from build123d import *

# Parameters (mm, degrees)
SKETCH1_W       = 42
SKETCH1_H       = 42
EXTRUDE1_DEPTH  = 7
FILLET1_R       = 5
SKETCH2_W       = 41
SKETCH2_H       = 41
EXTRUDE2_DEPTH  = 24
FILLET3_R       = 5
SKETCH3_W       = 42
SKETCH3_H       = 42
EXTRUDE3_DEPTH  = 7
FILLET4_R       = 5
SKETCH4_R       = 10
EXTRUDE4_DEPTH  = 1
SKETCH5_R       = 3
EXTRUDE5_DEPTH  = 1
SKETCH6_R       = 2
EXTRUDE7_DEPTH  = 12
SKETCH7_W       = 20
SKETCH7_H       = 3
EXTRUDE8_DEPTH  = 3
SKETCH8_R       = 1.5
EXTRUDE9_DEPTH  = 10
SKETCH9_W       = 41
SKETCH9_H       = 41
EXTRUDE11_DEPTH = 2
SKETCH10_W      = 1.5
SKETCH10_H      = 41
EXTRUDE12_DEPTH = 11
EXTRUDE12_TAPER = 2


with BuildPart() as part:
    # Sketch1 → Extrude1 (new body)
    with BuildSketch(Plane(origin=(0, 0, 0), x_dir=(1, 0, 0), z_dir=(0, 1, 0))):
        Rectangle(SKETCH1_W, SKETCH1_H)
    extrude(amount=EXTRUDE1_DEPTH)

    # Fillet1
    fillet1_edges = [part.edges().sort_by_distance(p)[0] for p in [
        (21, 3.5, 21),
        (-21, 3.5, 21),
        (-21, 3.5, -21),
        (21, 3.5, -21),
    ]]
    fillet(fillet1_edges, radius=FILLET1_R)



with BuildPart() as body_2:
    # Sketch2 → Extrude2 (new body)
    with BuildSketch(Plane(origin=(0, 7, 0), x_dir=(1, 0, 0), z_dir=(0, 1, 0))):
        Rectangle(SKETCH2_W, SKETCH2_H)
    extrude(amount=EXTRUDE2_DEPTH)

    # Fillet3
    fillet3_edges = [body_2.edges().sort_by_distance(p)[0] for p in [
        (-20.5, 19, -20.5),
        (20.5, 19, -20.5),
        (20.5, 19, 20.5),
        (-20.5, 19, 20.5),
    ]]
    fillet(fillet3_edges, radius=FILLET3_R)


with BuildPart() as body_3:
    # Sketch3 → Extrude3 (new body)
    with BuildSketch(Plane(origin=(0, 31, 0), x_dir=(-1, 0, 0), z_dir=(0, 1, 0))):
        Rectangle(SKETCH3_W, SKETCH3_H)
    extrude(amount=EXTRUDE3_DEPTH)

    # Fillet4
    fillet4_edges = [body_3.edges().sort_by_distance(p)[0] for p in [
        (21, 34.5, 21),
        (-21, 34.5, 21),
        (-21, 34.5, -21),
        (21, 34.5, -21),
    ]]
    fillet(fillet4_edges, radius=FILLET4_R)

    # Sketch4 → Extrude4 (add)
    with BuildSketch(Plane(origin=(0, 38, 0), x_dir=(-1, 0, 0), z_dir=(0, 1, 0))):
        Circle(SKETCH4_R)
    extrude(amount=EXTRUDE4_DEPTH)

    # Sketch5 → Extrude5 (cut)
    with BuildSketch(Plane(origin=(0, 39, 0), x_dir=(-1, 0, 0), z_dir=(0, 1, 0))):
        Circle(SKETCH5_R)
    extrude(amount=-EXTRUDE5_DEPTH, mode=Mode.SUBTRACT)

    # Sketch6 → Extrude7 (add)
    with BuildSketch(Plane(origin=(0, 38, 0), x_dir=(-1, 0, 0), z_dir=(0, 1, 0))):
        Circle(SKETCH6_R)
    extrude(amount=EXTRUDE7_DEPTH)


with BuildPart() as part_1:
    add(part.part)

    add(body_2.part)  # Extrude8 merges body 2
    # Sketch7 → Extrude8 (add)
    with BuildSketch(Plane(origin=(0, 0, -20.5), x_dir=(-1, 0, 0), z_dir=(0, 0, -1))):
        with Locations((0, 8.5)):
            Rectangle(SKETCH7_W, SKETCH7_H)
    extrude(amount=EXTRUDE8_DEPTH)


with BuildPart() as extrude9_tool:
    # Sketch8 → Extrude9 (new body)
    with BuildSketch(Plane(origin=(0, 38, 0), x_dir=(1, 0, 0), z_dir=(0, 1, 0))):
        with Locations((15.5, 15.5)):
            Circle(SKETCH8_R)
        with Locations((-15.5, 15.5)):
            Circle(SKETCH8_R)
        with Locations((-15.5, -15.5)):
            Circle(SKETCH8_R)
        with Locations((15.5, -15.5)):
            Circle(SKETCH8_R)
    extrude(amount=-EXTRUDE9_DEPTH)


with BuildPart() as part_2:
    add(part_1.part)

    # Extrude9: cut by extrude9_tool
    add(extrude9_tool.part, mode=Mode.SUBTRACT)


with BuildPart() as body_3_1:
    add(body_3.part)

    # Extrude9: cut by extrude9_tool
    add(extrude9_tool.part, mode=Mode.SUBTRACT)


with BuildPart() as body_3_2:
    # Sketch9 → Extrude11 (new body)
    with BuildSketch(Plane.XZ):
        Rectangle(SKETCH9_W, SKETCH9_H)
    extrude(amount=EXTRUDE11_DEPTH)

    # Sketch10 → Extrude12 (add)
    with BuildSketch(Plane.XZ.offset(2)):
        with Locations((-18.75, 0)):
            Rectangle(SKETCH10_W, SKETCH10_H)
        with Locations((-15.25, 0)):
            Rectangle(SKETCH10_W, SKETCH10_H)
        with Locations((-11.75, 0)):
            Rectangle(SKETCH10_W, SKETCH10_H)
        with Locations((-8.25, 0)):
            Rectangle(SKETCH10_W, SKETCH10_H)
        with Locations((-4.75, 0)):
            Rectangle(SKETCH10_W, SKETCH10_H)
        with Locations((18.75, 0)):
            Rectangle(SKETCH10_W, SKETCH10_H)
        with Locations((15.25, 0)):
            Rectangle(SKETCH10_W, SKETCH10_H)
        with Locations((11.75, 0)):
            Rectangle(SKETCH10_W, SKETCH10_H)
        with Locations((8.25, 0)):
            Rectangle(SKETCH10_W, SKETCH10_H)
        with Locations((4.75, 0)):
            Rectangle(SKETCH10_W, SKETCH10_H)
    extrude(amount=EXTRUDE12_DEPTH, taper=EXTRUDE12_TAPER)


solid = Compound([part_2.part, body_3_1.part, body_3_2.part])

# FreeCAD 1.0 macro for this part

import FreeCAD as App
import Part
import Sketcher
from FreeCAD import Vector
Q = App.Units.Quantity


def edges_at(feature, points):
    """Names of the edges that pass closest to the given points."""
    edges = feature.Shape.Edges
    near = lambda p: min(range(len(edges)), key=lambda i: edges[i].distToShape(Part.Vertex(*p))[0])
    return sorted({f"Edge{near(p) + 1}" for p in points})

doc = App.newDocument("Part")
body = doc.addObject("PartDesign::Body", "Body")

# Sketch on XZ plane
sketch1 = body.newObject("Sketcher::SketchObject", "Sketch")
sketch1.AttachmentSupport = (doc.getObject("XZ_Plane"), [""])
sketch1.MapMode = "FlatFace"
sketch1.addGeometry([
    Part.LineSegment(Vector(-21, -21, 0), Vector(-21, 21, 0)),
    Part.LineSegment(Vector(-21, 21, 0), Vector(21, 21, 0)),
    Part.LineSegment(Vector(21, 21, 0), Vector(21, -21, 0)),
    Part.LineSegment(Vector(21, -21, 0), Vector(-21, -21, 0)),
], False)
sketch1.addConstraint([
    Sketcher.Constraint("Coincident", 0, 2, 1, 1),
    Sketcher.Constraint("Coincident", 1, 2, 2, 1),
    Sketcher.Constraint("Coincident", 2, 2, 3, 1),
    Sketcher.Constraint("Coincident", 3, 2, 0, 1),
    Sketcher.Constraint("Vertical", 0),
    Sketcher.Constraint("Horizontal", 1),
    Sketcher.Constraint("Vertical", 2),
    Sketcher.Constraint("Horizontal", 3),
    Sketcher.Constraint("Symmetric", 0, 2, 2, 2, -1, 1),
    Sketcher.Constraint("Equal", 3, 0),
    Sketcher.Constraint("DistanceX", 1, 1, 1, 2, Q("42 mm")),
])
pad1 = body.newObject("PartDesign::Pad", "Pad")
pad1.Profile = sketch1
pad1.Length = 7
pad1.Reversed = True
doc.recompute()

fillet = body.newObject("PartDesign::Fillet", "Fillet")
fillet.Base = (pad1, edges_at(pad1, [
    (21, 3.5, 21),
    (-21, 3.5, 21),
    (-21, 3.5, -21),
    (21, 3.5, -21),
]))
fillet.Radius = 5
body2 = doc.addObject("PartDesign::Body", "Body001")

# Sketch on XZ plane
sketch2 = body2.newObject("Sketcher::SketchObject", "Sketch001")
sketch2.AttachmentSupport = (doc.getObject("XZ_Plane001"), [""])
sketch2.MapMode = "FlatFace"
sketch2.AttachmentOffset = App.Placement(Vector(0, 0, -7), App.Rotation())
sketch2.addGeometry([
    Part.LineSegment(Vector(-20, -20, 0), Vector(-20, 20, 0)),
    Part.LineSegment(Vector(-20, 20, 0), Vector(20, 20, 0)),
    Part.LineSegment(Vector(20, 20, 0), Vector(20, -20, 0)),
    Part.LineSegment(Vector(20, -20, 0), Vector(-20, -20, 0)),
], False)
sketch2.addConstraint([
    Sketcher.Constraint("Coincident", 0, 2, 1, 1),
    Sketcher.Constraint("Coincident", 1, 2, 2, 1),
    Sketcher.Constraint("Coincident", 2, 2, 3, 1),
    Sketcher.Constraint("Coincident", 3, 2, 0, 1),
    Sketcher.Constraint("Vertical", 0),
    Sketcher.Constraint("Horizontal", 1),
    Sketcher.Constraint("Vertical", 2),
    Sketcher.Constraint("Horizontal", 3),
    Sketcher.Constraint("Symmetric", 0, 2, 2, 2, -1, 1),
    Sketcher.Constraint("Equal", 3, 0),
    Sketcher.Constraint("DistanceX", 1, 1, 1, 2, Q("41 mm")),
])
pad2 = body2.newObject("PartDesign::Pad", "Pad001")
pad2.Profile = sketch2
pad2.Length = 24
pad2.Reversed = True
doc.recompute()

fillet2 = body2.newObject("PartDesign::Fillet", "Fillet001")
fillet2.Base = (pad2, edges_at(pad2, [
    (-20.5, 19, -20.5),
    (20.5, 19, -20.5),
    (20.5, 19, 20.5),
    (-20.5, 19, 20.5),
]))
fillet2.Radius = 5
body3 = doc.addObject("PartDesign::Body", "Body002")

# Sketch on XZ plane
sketch3 = body3.newObject("Sketcher::SketchObject", "Sketch002")
sketch3.AttachmentSupport = (doc.getObject("XZ_Plane002"), [""])
sketch3.MapMode = "FlatFace"
sketch3.AttachmentOffset = App.Placement(Vector(0, 0, -31), App.Rotation())
sketch3.addGeometry([
    Part.LineSegment(Vector(21, 21, 0), Vector(21, -21, 0)),
    Part.LineSegment(Vector(21, -21, 0), Vector(-21, -21, 0)),
    Part.LineSegment(Vector(-21, -21, 0), Vector(-21, 21, 0)),
    Part.LineSegment(Vector(-21, 21, 0), Vector(21, 21, 0)),
], False)
sketch3.addConstraint([
    Sketcher.Constraint("Coincident", 0, 2, 1, 1),
    Sketcher.Constraint("Coincident", 1, 2, 2, 1),
    Sketcher.Constraint("Coincident", 2, 2, 3, 1),
    Sketcher.Constraint("Coincident", 3, 2, 0, 1),
    Sketcher.Constraint("Vertical", 0),
    Sketcher.Constraint("Horizontal", 1),
    Sketcher.Constraint("Vertical", 2),
    Sketcher.Constraint("Horizontal", 3),
    Sketcher.Constraint("Symmetric", 0, 2, 2, 2, -1, 1),
    Sketcher.Constraint("Equal", 3, 0),
    Sketcher.Constraint("DistanceX", 1, 2, 1, 1, Q("42 mm")),
])
pad3 = body3.newObject("PartDesign::Pad", "Pad002")
pad3.Profile = sketch3
pad3.Length = 7
pad3.Reversed = True
doc.recompute()

fillet3 = body3.newObject("PartDesign::Fillet", "Fillet002")
fillet3.Base = (pad3, edges_at(pad3, [
    (21, 34.5, 21),
    (-21, 34.5, 21),
    (-21, 34.5, -21),
    (21, 34.5, -21),
]))
fillet3.Radius = 5

# Sketch on XZ plane
sketch4 = body3.newObject("Sketcher::SketchObject", "Sketch003")
sketch4.AttachmentSupport = (doc.getObject("XZ_Plane002"), [""])
sketch4.MapMode = "FlatFace"
sketch4.AttachmentOffset = App.Placement(Vector(0, 0, -38), App.Rotation())
sketch4.addGeometry(Part.Circle(Vector(0, 0, 0), Vector(0, 0, 1), 10), False)
sketch4.addConstraint([
    Sketcher.Constraint("Coincident", 0, 3, -1, 1),
    Sketcher.Constraint("Diameter", 0, Q("20 mm")),
])
pad4 = body3.newObject("PartDesign::Pad", "Pad003")
pad4.Profile = sketch4
pad4.Length = 1
pad4.Reversed = True

# Sketch on XZ plane
sketch5 = body3.newObject("Sketcher::SketchObject", "Sketch004")
sketch5.AttachmentSupport = (doc.getObject("XZ_Plane002"), [""])
sketch5.MapMode = "FlatFace"
sketch5.AttachmentOffset = App.Placement(Vector(0, 0, -39), App.Rotation())
sketch5.addGeometry(Part.Circle(Vector(0, 0, 0), Vector(0, 0, 1), 3), False)
sketch5.addConstraint([
    Sketcher.Constraint("Coincident", 0, 3, -1, 1),
    Sketcher.Constraint("Diameter", 0, Q("6 mm")),
])
pocket1 = body3.newObject("PartDesign::Pocket", "Pocket")
pocket1.Profile = sketch5
pocket1.Length = 1
pocket1.Reversed = True

# Sketch on XZ plane
sketch6 = body3.newObject("Sketcher::SketchObject", "Sketch005")
sketch6.AttachmentSupport = (doc.getObject("XZ_Plane002"), [""])
sketch6.MapMode = "FlatFace"
sketch6.AttachmentOffset = App.Placement(Vector(0, 0, -38), App.Rotation())
sketch6.addGeometry(Part.Circle(Vector(0, 0, 0), Vector(0, 0, 1), 2), False)
sketch6.addConstraint([
    Sketcher.Constraint("Coincident", 0, 3, -1, 1),
    Sketcher.Constraint("Diameter", 0, Q("4 mm")),
])
pad5 = body3.newObject("PartDesign::Pad", "Pad004")
pad5.Profile = sketch6
pad5.Length = 12
pad5.Reversed = True
doc.recompute()

boolean = body.newObject("PartDesign::Boolean", "Boolean")
boolean.Type = "Fuse"
boolean.addObjects([body2])

# Sketch on XY plane
sketch7 = body.newObject("Sketcher::SketchObject", "Sketch006")
sketch7.AttachmentSupport = (doc.getObject("XY_Plane"), [""])
sketch7.MapMode = "FlatFace"
sketch7.AttachmentOffset = App.Placement(Vector(0, 0, -20.5), App.Rotation())
sketch7.addGeometry([
    Part.LineSegment(Vector(10, 10, 0), Vector(10, 7, 0)),
    Part.LineSegment(Vector(10, 7, 0), Vector(-10, 7, 0)),
    Part.LineSegment(Vector(-10, 7, 0), Vector(-10, 10, 0)),
    Part.LineSegment(Vector(-10, 10, 0), Vector(10, 10, 0)),
], False)
sketch7.addConstraint([
    Sketcher.Constraint("Coincident", 0, 2, 1, 1),
    Sketcher.Constraint("Coincident", 1, 2, 2, 1),
    Sketcher.Constraint("Coincident", 2, 2, 3, 1),
    Sketcher.Constraint("Coincident", 3, 2, 0, 1),
    Sketcher.Constraint("Vertical", 0),
    Sketcher.Constraint("Horizontal", 1),
    Sketcher.Constraint("Vertical", 2),
    Sketcher.Constraint("Horizontal", 3),
    Sketcher.Constraint("DistanceX", 1, 2, 1, 1, Q("20 mm")),
    Sketcher.Constraint("DistanceY", 0, 2, 0, 1, Q("3 mm")),
    Sketcher.Constraint("DistanceX", -1, 1, 0, 2, Q("10 mm")),
    Sketcher.Constraint("DistanceY", -1, 1, 0, 2, Q("7 mm")),
])
pad6 = body.newObject("PartDesign::Pad", "Pad005")
pad6.Profile = sketch7
pad6.Length = 3
pad6.Reversed = True
body4 = doc.addObject("PartDesign::Body", "Body003")
body4.AllowCompound = True

# Sketch on XZ plane
sketch8 = body4.newObject("Sketcher::SketchObject", "Sketch007")
sketch8.AttachmentSupport = (doc.getObject("XZ_Plane003"), [""])
sketch8.MapMode = "FlatFace"
sketch8.AttachmentOffset = App.Placement(Vector(0, 0, -38), App.Rotation())
sketch8.addGeometry([
    Part.Circle(Vector(15.5, -15.5, 0), Vector(0, 0, 1), 1.5),
    Part.Circle(Vector(-15.5, -15.5, 0), Vector(0, 0, 1), 1.5),
    Part.Circle(Vector(-15.5, 15.5, 0), Vector(0, 0, 1), 1.5),
    Part.Circle(Vector(15.5, 15.5, 0), Vector(0, 0, 1), 1.5),
], False)
sketch8.addConstraint([
    Sketcher.Constraint("Equal", 0, 1),
    Sketcher.Constraint("Equal", 1, 2),
    Sketcher.Constraint("Equal", 2, 3),
    Sketcher.Constraint("Symmetric", 0, 3, 2, 3, -1, 1),
    Sketcher.Constraint("Symmetric", 1, 3, 3, 3, -1, 1),
    Sketcher.Constraint("Symmetric", 0, 3, 1, 3, -2),
    Sketcher.Constraint("Diameter", 0, Q("3 mm")),
    Sketcher.Constraint("DistanceX", 1, 3, 0, 3, Q("31 mm")),
    Sketcher.Constraint("DistanceY", 1, 3, 2, 3, Q("31 mm")),
])
pad7 = body4.newObject("PartDesign::Pad", "Pad006")
pad7.Profile = sketch8
pad7.Length = 10
doc.recompute()

body5 = doc.addObject("PartDesign::Body", "Body004")
body5.BaseFeature = body4
boolean2 = body.newObject("PartDesign::Boolean", "Boolean001")
boolean2.Type = "Cut"
boolean2.addObjects([body5])
doc.recompute()

boolean3 = body3.newObject("PartDesign::Boolean", "Boolean002")
boolean3.Type = "Cut"
boolean3.addObjects([body4])
body6 = doc.addObject("PartDesign::Body", "Body005")

# Sketch on XZ plane
sketch9 = body6.newObject("Sketcher::SketchObject", "Sketch008")
sketch9.AttachmentSupport = (doc.getObject("XZ_Plane005"), [""])
sketch9.MapMode = "FlatFace"
sketch9.addGeometry([
    Part.LineSegment(Vector(-20, 20, 0), Vector(-20, -20, 0)),
    Part.LineSegment(Vector(-20, -20, 0), Vector(20, -20, 0)),
    Part.LineSegment(Vector(20, -20, 0), Vector(20, 20, 0)),
    Part.LineSegment(Vector(20, 20, 0), Vector(-20, 20, 0)),
], False)
sketch9.addConstraint([
    Sketcher.Constraint("Coincident", 0, 2, 1, 1),
    Sketcher.Constraint("Coincident", 1, 2, 2, 1),
    Sketcher.Constraint("Coincident", 2, 2, 3, 1),
    Sketcher.Constraint("Coincident", 3, 2, 0, 1),
    Sketcher.Constraint("Vertical", 0),
    Sketcher.Constraint("Horizontal", 1),
    Sketcher.Constraint("Vertical", 2),
    Sketcher.Constraint("Horizontal", 3),
    Sketcher.Constraint("Symmetric", 0, 2, 2, 2, -1, 1),
    Sketcher.Constraint("Equal", 3, 0),
    Sketcher.Constraint("DistanceX", 1, 1, 1, 2, Q("41 mm")),
])
pad8 = body6.newObject("PartDesign::Pad", "Pad007")
pad8.Profile = sketch9
pad8.Length = 2

# Sketch on XZ plane
sketch10 = body6.newObject("Sketcher::SketchObject", "Sketch009")
sketch10.AttachmentSupport = (doc.getObject("XZ_Plane005"), [""])
sketch10.MapMode = "FlatFace"
sketch10.AttachmentOffset = App.Placement(Vector(0, 0, 2), App.Rotation())
sketch10.addGeometry([
    Part.LineSegment(Vector(-19.5, 20.5, 0), Vector(-19.5, -20.5, 0)),  # 0
    Part.LineSegment(Vector(-19.5, -20.5, 0), Vector(-18, -20.5, 0)),  # 1
    Part.LineSegment(Vector(-18, -20.5, 0), Vector(-18, 20.5, 0)),  # 2
    Part.LineSegment(Vector(-18, 20.5, 0), Vector(-19.5, 20.5, 0)),  # 3
    Part.LineSegment(Vector(-16, 20.5, 0), Vector(-16, -20.5, 0)),  # 4
    Part.LineSegment(Vector(-16, -20.5, 0), Vector(-14.5, -20.5, 0)),  # 5
    Part.LineSegment(Vector(-14.5, -20.5, 0), Vector(-14.5, 20.5, 0)),  # 6
    Part.LineSegment(Vector(-14.5, 20.5, 0), Vector(-16, 20.5, 0)),  # 7
    Part.LineSegment(Vector(-12.5, 20.5, 0), Vector(-12.5, -20.5, 0)),  # 8
    Part.LineSegment(Vector(-12.5, -20.5, 0), Vector(-11, -20.5, 0)),  # 9
    Part.LineSegment(Vector(-11, -20.5, 0), Vector(-11, 20.5, 0)),  # 10
    Part.LineSegment(Vector(-11, 20.5, 0), Vector(-12.5, 20.5, 0)),  # 11
    Part.LineSegment(Vector(-9, 20.5, 0), Vector(-9, -20.5, 0)),  # 12
    Part.LineSegment(Vector(-9, -20.5, 0), Vector(-7.5, -20.5, 0)),  # 13
    Part.LineSegment(Vector(-7.5, -20.5, 0), Vector(-7.5, 20.5, 0)),  # 14
    Part.LineSegment(Vector(-7.5, 20.5, 0), Vector(-9, 20.5, 0)),  # 15
    Part.LineSegment(Vector(-5.5, 20.5, 0), Vector(-5.5, -20.5, 0)),  # 16
    Part.LineSegment(Vector(-5.5, -20.5, 0), Vector(-4, -20.5, 0)),  # 17
    Part.LineSegment(Vector(-4, -20.5, 0), Vector(-4, 20.5, 0)),  # 18
    Part.LineSegment(Vector(-4, 20.5, 0), Vector(-5.5, 20.5, 0)),  # 19
    Part.LineSegment(Vector(18, 20.5, 0), Vector(18, -20.5, 0)),  # 20
    Part.LineSegment(Vector(18, -20.5, 0), Vector(19.5, -20.5, 0)),  # 21
    Part.LineSegment(Vector(19.5, -20.5, 0), Vector(19.5, 20.5, 0)),  # 22
    Part.LineSegment(Vector(19.5, 20.5, 0), Vector(18, 20.5, 0)),  # 23
    Part.LineSegment(Vector(14.5, 20.5, 0), Vector(14.5, -20.5, 0)),  # 24
    Part.LineSegment(Vector(14.5, -20.5, 0), Vector(16, -20.5, 0)),  # 25
    Part.LineSegment(Vector(16, -20.5, 0), Vector(16, 20.5, 0)),  # 26
    Part.LineSegment(Vector(16, 20.5, 0), Vector(14.5, 20.5, 0)),  # 27
    Part.LineSegment(Vector(11, 20.5, 0), Vector(11, -20.5, 0)),  # 28
    Part.LineSegment(Vector(11, -20.5, 0), Vector(12.5, -20.5, 0)),  # 29
    Part.LineSegment(Vector(12.5, -20.5, 0), Vector(12.5, 20.5, 0)),  # 30
    Part.LineSegment(Vector(12.5, 20.5, 0), Vector(11, 20.5, 0)),  # 31
    Part.LineSegment(Vector(7.5, 20.5, 0), Vector(7.5, -20.5, 0)),  # 32
    Part.LineSegment(Vector(7.5, -20.5, 0), Vector(9, -20.5, 0)),  # 33
    Part.LineSegment(Vector(9, -20.5, 0), Vector(9, 20.5, 0)),  # 34
    Part.LineSegment(Vector(9, 20.5, 0), Vector(7.5, 20.5, 0)),  # 35
    Part.LineSegment(Vector(4, 20.5, 0), Vector(4, -20.5, 0)),  # 36
    Part.LineSegment(Vector(4, -20.5, 0), Vector(5.5, -20.5, 0)),  # 37
    Part.LineSegment(Vector(5.5, -20.5, 0), Vector(5.5, 20.5, 0)),  # 38
    Part.LineSegment(Vector(5.5, 20.5, 0), Vector(4, 20.5, 0)),  # 39
], False)
sketch10.addConstraint([
    Sketcher.Constraint("Coincident", 0, 2, 1, 1),
    Sketcher.Constraint("Coincident", 1, 2, 2, 1),
    Sketcher.Constraint("Coincident", 2, 2, 3, 1),
    Sketcher.Constraint("Coincident", 3, 2, 0, 1),
    Sketcher.Constraint("Coincident", 4, 2, 5, 1),
    Sketcher.Constraint("Coincident", 5, 2, 6, 1),
    Sketcher.Constraint("Coincident", 6, 2, 7, 1),
    Sketcher.Constraint("Coincident", 7, 2, 4, 1),
    Sketcher.Constraint("Coincident", 8, 2, 9, 1),
    Sketcher.Constraint("Coincident", 9, 2, 10, 1),
    Sketcher.Constraint("Coincident", 10, 2, 11, 1),
    Sketcher.Constraint("Coincident", 11, 2, 8, 1),
    Sketcher.Constraint("Coincident", 12, 2, 13, 1),
    Sketcher.Constraint("Coincident", 13, 2, 14, 1),
    Sketcher.Constraint("Coincident", 14, 2, 15, 1),
    Sketcher.Constraint("Coincident", 15, 2, 12, 1),
    Sketcher.Constraint("Coincident", 16, 2, 17, 1),
    Sketcher.Constraint("Coincident", 17, 2, 18, 1),
    Sketcher.Constraint("Coincident", 18, 2, 19, 1),
    Sketcher.Constraint("Coincident", 19, 2, 16, 1),
    Sketcher.Constraint("Coincident", 20, 2, 21, 1),
    Sketcher.Constraint("Coincident", 21, 2, 22, 1),
    Sketcher.Constraint("Coincident", 22, 2, 23, 1),
    Sketcher.Constraint("Coincident", 23, 2, 20, 1),
    Sketcher.Constraint("Coincident", 24, 2, 25, 1),
    Sketcher.Constraint("Coincident", 25, 2, 26, 1),
    Sketcher.Constraint("Coincident", 26, 2, 27, 1),
    Sketcher.Constraint("Coincident", 27, 2, 24, 1),
    Sketcher.Constraint("Coincident", 28, 2, 29, 1),
    Sketcher.Constraint("Coincident", 29, 2, 30, 1),
    Sketcher.Constraint("Coincident", 30, 2, 31, 1),
    Sketcher.Constraint("Coincident", 31, 2, 28, 1),
    Sketcher.Constraint("Coincident", 32, 2, 33, 1),
    Sketcher.Constraint("Coincident", 33, 2, 34, 1),
    Sketcher.Constraint("Coincident", 34, 2, 35, 1),
    Sketcher.Constraint("Coincident", 35, 2, 32, 1),
    Sketcher.Constraint("Coincident", 36, 2, 37, 1),
    Sketcher.Constraint("Coincident", 37, 2, 38, 1),
    Sketcher.Constraint("Coincident", 38, 2, 39, 1),
    Sketcher.Constraint("Coincident", 39, 2, 36, 1),
    Sketcher.Constraint("Vertical", 0),
    Sketcher.Constraint("Horizontal", 1),
    Sketcher.Constraint("Vertical", 2),
    Sketcher.Constraint("Horizontal", 3),
    Sketcher.Constraint("Vertical", 4),
    Sketcher.Constraint("Horizontal", 5),
    Sketcher.Constraint("Vertical", 6),
    Sketcher.Constraint("Horizontal", 7),
    Sketcher.Constraint("Vertical", 8),
    Sketcher.Constraint("Horizontal", 9),
    Sketcher.Constraint("Vertical", 10),
    Sketcher.Constraint("Horizontal", 11),
    Sketcher.Constraint("Vertical", 12),
    Sketcher.Constraint("Horizontal", 13),
    Sketcher.Constraint("Vertical", 14),
    Sketcher.Constraint("Horizontal", 15),
    Sketcher.Constraint("Vertical", 16),
    Sketcher.Constraint("Horizontal", 17),
    Sketcher.Constraint("Vertical", 18),
    Sketcher.Constraint("Horizontal", 19),
    Sketcher.Constraint("Vertical", 20),
    Sketcher.Constraint("Horizontal", 21),
    Sketcher.Constraint("Vertical", 22),
    Sketcher.Constraint("Horizontal", 23),
    Sketcher.Constraint("Vertical", 24),
    Sketcher.Constraint("Horizontal", 25),
    Sketcher.Constraint("Vertical", 26),
    Sketcher.Constraint("Horizontal", 27),
    Sketcher.Constraint("Vertical", 28),
    Sketcher.Constraint("Horizontal", 29),
    Sketcher.Constraint("Vertical", 30),
    Sketcher.Constraint("Horizontal", 31),
    Sketcher.Constraint("Vertical", 32),
    Sketcher.Constraint("Horizontal", 33),
    Sketcher.Constraint("Vertical", 34),
    Sketcher.Constraint("Horizontal", 35),
    Sketcher.Constraint("Vertical", 36),
    Sketcher.Constraint("Horizontal", 37),
    Sketcher.Constraint("Vertical", 38),
    Sketcher.Constraint("Horizontal", 39),
    Sketcher.Constraint("Symmetric", 2, 2, 20, 2, -1, 1),
    Sketcher.Constraint("Symmetric", 0, 2, 22, 2, -1, 1),
    Sketcher.Constraint("Symmetric", 6, 2, 24, 2, -1, 1),
    Sketcher.Constraint("Symmetric", 4, 2, 26, 2, -1, 1),
    Sketcher.Constraint("Symmetric", 10, 2, 28, 2, -1, 1),
    Sketcher.Constraint("Symmetric", 8, 2, 30, 2, -1, 1),
    Sketcher.Constraint("Symmetric", 14, 2, 32, 2, -1, 1),
    Sketcher.Constraint("Symmetric", 12, 2, 34, 2, -1, 1),
    Sketcher.Constraint("Symmetric", 18, 2, 36, 2, -1, 1),
    Sketcher.Constraint("Symmetric", 16, 2, 38, 2, -1, 1),
    Sketcher.Constraint("Horizontal", 1, 2, 4, 2),
    Sketcher.Constraint("Horizontal", 3, 2, 6, 2),
    Sketcher.Constraint("Horizontal", 5, 2, 8, 2),
    Sketcher.Constraint("Horizontal", 7, 2, 10, 2),
    Sketcher.Constraint("Horizontal", 9, 2, 12, 2),
    Sketcher.Constraint("Horizontal", 11, 2, 14, 2),
    Sketcher.Constraint("Horizontal", 13, 2, 16, 2),
    Sketcher.Constraint("Horizontal", 15, 2, 18, 2),
    Sketcher.Constraint("Horizontal", 17, 2, 20, 2),
    Sketcher.Constraint("Equal", 3, 5),
    Sketcher.Constraint("Equal", 7, 9),
    Sketcher.Constraint("Equal", 11, 13),
    Sketcher.Constraint("Equal", 15, 17),
    Sketcher.Constraint("DistanceY", 0, 2, 0, 1, Q("41 mm")),
    Sketcher.Constraint("DistanceX", 1, 1, 1, 2, Q("1.5 mm")),
    Sketcher.Constraint("DistanceX", 1, 2, -1, 1, Q("18 mm")),
    Sketcher.Constraint("DistanceX", 4, 2, -1, 1, Q("16 mm")),
    Sketcher.Constraint("DistanceX", 9, 2, -1, 1, Q("11 mm")),
    Sketcher.Constraint("DistanceX", 12, 2, -1, 1, Q("9 mm")),
    Sketcher.Constraint("DistanceX", 17, 2, -1, 1, Q("4 mm")),
])
pad9 = body6.newObject("PartDesign::Pad", "Pad008")
pad9.Profile = sketch10
pad9.Length = 11
pad9.TaperAngle = -2

doc.recompute()
